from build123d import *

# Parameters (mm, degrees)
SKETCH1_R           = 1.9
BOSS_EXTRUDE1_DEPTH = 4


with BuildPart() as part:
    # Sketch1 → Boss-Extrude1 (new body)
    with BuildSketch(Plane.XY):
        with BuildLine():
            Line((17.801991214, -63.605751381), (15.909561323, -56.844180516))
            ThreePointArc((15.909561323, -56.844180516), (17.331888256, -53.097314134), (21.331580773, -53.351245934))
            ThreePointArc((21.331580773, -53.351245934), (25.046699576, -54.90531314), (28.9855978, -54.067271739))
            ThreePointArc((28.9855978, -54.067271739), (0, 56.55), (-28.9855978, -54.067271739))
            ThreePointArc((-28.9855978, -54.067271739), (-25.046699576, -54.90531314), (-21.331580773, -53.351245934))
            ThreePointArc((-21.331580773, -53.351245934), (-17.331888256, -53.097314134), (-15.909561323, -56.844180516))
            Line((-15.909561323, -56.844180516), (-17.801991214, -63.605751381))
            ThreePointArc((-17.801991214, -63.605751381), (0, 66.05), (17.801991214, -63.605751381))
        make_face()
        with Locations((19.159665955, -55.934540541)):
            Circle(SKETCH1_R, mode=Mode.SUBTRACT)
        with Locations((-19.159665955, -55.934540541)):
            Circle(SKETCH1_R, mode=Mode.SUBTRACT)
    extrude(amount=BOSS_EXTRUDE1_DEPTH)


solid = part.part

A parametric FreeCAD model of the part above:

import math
import FreeCAD as App
import Part
import Sketcher
from FreeCAD import Vector
Q = App.Units.Quantity

doc = App.newDocument("Part")
body = doc.addObject("PartDesign::Body", "Body")

# Sketch on XY plane
sketch1 = doc.addObject("Sketcher::SketchObject", "Sketch")
body.addObject(sketch1)
sketch1.AttachmentSupport = (doc.XY_Plane, [""])
sketch1.MapMode = "FlatFace"
sketch1.addGeometry([
    Part.LineSegment(Vector(15.9, -56.8, 0), Vector(17.8, -63.6, 0)),  # 0
    Part.ArcOfCircle(Part.Circle(Vector(0, 0, 0), Vector(0, 0, 1), 66), math.radians(-74), math.radians(254)),  # 1
    Part.LineSegment(Vector(-17.8, -63.6, 0), Vector(-15.9, -56.8, 0)),  # 2
    Part.ArcOfCircle(Part.Circle(Vector(-19.2, -55.9, 0), Vector(0, 0, 1), 3.4), math.radians(-16), math.radians(130)),  # 3
    Part.ArcOfCircle(Part.Circle(Vector(-25.7, -48.2, 0), Vector(0, 0, 1), 6.7), math.radians(-119), math.radians(-50)),  # 4
    Part.ArcOfCircle(Part.Circle(Vector(0, -2.6, 0), Vector(0, 0, 1), 59.1), math.radians(-61), math.radians(241)),  # 5
    Part.ArcOfCircle(Part.Circle(Vector(25.7, -48.2, 0), Vector(0, 0, 1), 6.7), math.radians(-130), math.radians(-61)),  # 6
    Part.ArcOfCircle(Part.Circle(Vector(19.2, -55.9, 0), Vector(0, 0, 1), 3.4), math.radians(50), math.radians(196)),  # 7
    Part.Circle(Vector(19.2, -55.9, 0), Vector(0, 0, 1), 1.9),  # 8
    Part.Circle(Vector(-19.2, -55.9, 0), Vector(0, 0, 1), 1.9),  # 9
], False)
sketch1.addConstraint([
    Sketcher.Constraint("Coincident", 0, 2, 1, 1),
    Sketcher.Constraint("Coincident", 1, 2, 2, 1),
    Sketcher.Constraint("Tangent", 2, 2, 3, 1),
    Sketcher.Constraint("Tangent", 3, 2, 4, 2),
    Sketcher.Constraint("Tangent", 4, 1, 5, 2),
    Sketcher.Constraint("Tangent", 5, 1, 6, 2),
    Sketcher.Constraint("Tangent", 6, 1, 7, 1),
    Sketcher.Constraint("Tangent", 7, 2, 0, 1),
    Sketcher.Constraint("Coincident", 1, 3, -1, 1),
    Sketcher.Constraint("Coincident", 8, 3, 7, 3),
    Sketcher.Constraint("Coincident", 9, 3, 3, 3),
    Sketcher.Constraint("Equal", 4, 6),
    Sketcher.Constraint("Equal", 3, 7),
    Sketcher.Constraint("Equal", 8, 9),
    Sketcher.Constraint("Symmetric", 4, 3, 6, 3, -2),
    Sketcher.Constraint("Symmetric", 2, 2, 7, 2, -2),
    Sketcher.Constraint("Diameter", 8, Q("3.8 mm")),
    Sketcher.Constraint("Radius", 1, Q("66.05 mm")),
    Sketcher.Constraint("Radius", 4, Q("6.75 mm")),
    Sketcher.Constraint("Radius", 3, Q("3.375 mm")),
    Sketcher.Constraint("Radius", 5, Q("59.106257 mm")),
    Sketcher.Constraint("DistanceY", 4, 3, 5, 3, Q("45.6284 mm")),
    Sketcher.Constraint("DistanceY", 3, 3, -1, 1, Q("55.934541 mm")),
    Sketcher.Constraint("DistanceX", -1, 1, 0, 2, Q("17.801991 mm")),
    Sketcher.Constraint("DistanceX", 2, 2, -1, 1, Q("15.909561 mm")),
])
pad1 = doc.addObject("PartDesign::Pad", "Pad")
body.addObject(pad1)
pad1.Profile = sketch1
pad1.Length = 4

doc.recompute()
